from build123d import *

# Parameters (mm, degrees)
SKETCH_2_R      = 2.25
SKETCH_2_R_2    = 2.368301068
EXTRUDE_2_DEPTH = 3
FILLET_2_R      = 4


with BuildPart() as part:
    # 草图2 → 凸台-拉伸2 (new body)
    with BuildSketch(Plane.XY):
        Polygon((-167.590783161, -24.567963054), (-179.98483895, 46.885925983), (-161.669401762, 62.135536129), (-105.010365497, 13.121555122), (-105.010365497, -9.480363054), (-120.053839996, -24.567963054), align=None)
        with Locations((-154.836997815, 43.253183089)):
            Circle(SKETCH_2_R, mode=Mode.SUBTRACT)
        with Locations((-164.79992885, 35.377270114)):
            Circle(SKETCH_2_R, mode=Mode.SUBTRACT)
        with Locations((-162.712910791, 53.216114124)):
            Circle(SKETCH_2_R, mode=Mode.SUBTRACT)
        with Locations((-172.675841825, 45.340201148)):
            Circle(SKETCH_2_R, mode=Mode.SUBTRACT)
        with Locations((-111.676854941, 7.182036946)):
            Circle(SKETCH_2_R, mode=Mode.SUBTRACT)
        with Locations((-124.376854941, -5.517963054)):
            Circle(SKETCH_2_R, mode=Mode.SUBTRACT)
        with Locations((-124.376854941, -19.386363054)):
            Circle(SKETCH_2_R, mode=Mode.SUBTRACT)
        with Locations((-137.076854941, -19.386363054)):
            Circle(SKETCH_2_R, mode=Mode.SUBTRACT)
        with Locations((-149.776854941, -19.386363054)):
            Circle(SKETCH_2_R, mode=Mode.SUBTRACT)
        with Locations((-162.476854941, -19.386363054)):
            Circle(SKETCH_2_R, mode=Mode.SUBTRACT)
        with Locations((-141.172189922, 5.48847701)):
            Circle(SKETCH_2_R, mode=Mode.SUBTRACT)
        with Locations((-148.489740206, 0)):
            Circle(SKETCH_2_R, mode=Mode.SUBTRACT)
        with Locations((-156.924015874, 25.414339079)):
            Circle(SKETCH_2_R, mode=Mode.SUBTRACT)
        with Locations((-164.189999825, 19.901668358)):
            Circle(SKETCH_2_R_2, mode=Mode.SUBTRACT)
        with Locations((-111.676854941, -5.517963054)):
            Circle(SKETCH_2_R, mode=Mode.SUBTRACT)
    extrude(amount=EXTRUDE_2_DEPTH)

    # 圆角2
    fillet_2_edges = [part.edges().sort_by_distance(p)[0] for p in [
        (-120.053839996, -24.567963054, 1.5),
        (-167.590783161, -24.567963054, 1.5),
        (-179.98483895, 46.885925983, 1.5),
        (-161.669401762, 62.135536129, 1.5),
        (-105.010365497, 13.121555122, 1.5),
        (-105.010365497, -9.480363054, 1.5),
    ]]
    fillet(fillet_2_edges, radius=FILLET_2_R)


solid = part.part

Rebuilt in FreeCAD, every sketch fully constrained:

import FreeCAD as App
import Part
import Sketcher

V = App.Vector
Q = App.Units.Quantity


def edges_at(feature, points):
    """Names of the edges that pass closest to the given points."""
    edges = feature.Shape.Edges
    near = lambda p: min(range(len(edges)), key=lambda i: edges[i].distToShape(Part.Vertex(*p))[0])
    return sorted({f"Edge{near(p) + 1}" for p in points})


def add_polygon(sketch, points):
    """Adds a closed chain of lines whose ends are joined by coincident constraints."""
    first, n = sketch.GeometryCount, len(points)
    for a, b in zip(points, points[1:] + points[:1]):
        sketch.addGeometry(Part.LineSegment(App.Vector(*a, 0), App.Vector(*b, 0)), False)
    for i in range(n):
        sketch.addConstraint(Sketcher.Constraint("Coincident", first + i, 2, first + (i + 1) % n, 1))

doc = App.newDocument("Part")
body = doc.addObject("PartDesign::Body", "Body")

# Sketch on XY plane
sketch1 = doc.addObject("Sketcher::SketchObject", "Sketch")
body.addObject(sketch1)
sketch1.AttachmentSupport = (doc.XY_Plane, [""])
sketch1.MapMode = "FlatFace"
add_polygon(sketch1, [(-180, 46.9), (-167.6, -24.6), (-120.1, -24.6), (-105, -9.5), (-105, 13.1), (-161.7, 62.1)])  # lines 0-5
sketch1.addGeometry(Part.Circle(V(-124.4, -19.4, 0), V(0, 0, 1), 2.2), False)  # 6
sketch1.addGeometry(Part.Circle(V(-111.7, -5.5, 0), V(0, 0, 1), 2.2), False)  # 7
sketch1.addGeometry(Part.Circle(V(-124.4, -5.5, 0), V(0, 0, 1), 2.2), False)  # 8
sketch1.addGeometry(Part.Circle(V(-137.1, -19.4, 0), V(0, 0, 1), 2.2), False)  # 9
sketch1.addGeometry(Part.Circle(V(-111.7, 7.2, 0), V(0, 0, 1), 2.2), False)  # 10
sketch1.addGeometry(Part.Circle(V(-141.2, 5.5, 0), V(0, 0, 1), 2.2), False)  # 11
sketch1.addGeometry(Part.Circle(V(-149.8, -19.4, 0), V(0, 0, 1), 2.2), False)  # 12
sketch1.addGeometry(Part.Circle(V(-162.5, -19.4, 0), V(0, 0, 1), 2.2), False)  # 13
sketch1.addGeometry(Part.Circle(V(-148.5, 0, 0), V(0, 0, 1), 2.2), False)  # 14
sketch1.addGeometry(Part.Circle(V(-156.9, 25.4, 0), V(0, 0, 1), 2.2), False)  # 15
sketch1.addGeometry(Part.Circle(V(-164.2, 19.9, 0), V(0, 0, 1), 2.4), False)  # 16
sketch1.addGeometry(Part.Circle(V(-164.8, 35.4, 0), V(0, 0, 1), 2.2), False)  # 17
sketch1.addGeometry(Part.Circle(V(-154.8, 43.3, 0), V(0, 0, 1), 2.2), False)  # 18
sketch1.addGeometry(Part.Circle(V(-172.7, 45.3, 0), V(0, 0, 1), 2.2), False)  # 19
sketch1.addGeometry(Part.Circle(V(-162.7, 53.2, 0), V(0, 0, 1), 2.2), False)  # 20
sketch1.addConstraint([
    Sketcher.Constraint("Horizontal", 1),
    Sketcher.Constraint("Vertical", 3),
    Sketcher.Constraint("Equal", 6, 7),
    Sketcher.Constraint("Equal", 7, 8),
    Sketcher.Constraint("Equal", 8, 9),
    Sketcher.Constraint("Equal", 9, 10),
    Sketcher.Constraint("Equal", 10, 11),
    Sketcher.Constraint("Equal", 11, 12),
    Sketcher.Constraint("Equal", 12, 13),
    Sketcher.Constraint("Equal", 13, 14),
    Sketcher.Constraint("Equal", 14, 15),
    Sketcher.Constraint("Equal", 15, 17),
    Sketcher.Constraint("Equal", 17, 18),
    Sketcher.Constraint("Equal", 18, 19),
    Sketcher.Constraint("Equal", 19, 20),
    Sketcher.Constraint("PointOnObject", 14, 3, -1),
    Sketcher.Constraint("Horizontal", 7, 3, 8, 3),
    Sketcher.Constraint("Horizontal", 6, 3, 9, 3),
    Sketcher.Constraint("Horizontal", 9, 3, 12, 3),
    Sketcher.Constraint("Horizontal", 12, 3, 13, 3),
    Sketcher.Constraint("Vertical", 6, 3, 8, 3),
    Sketcher.Constraint("Vertical", 7, 3, 10, 3),
    Sketcher.Constraint("Diameter", 6, Q("4.5 mm")),
    Sketcher.Constraint("DistanceX", 6, 3, 7, 3, Q("12.7 mm")),
    Sketcher.Constraint("DistanceX", 9, 3, 6, 3, Q("12.7 mm")),
    Sketcher.Constraint("DistanceY", 7, 3, 10, 3, Q("12.7 mm")),
    Sketcher.Constraint("DistanceX", 12, 3, 9, 3, Q("12.7 mm")),
    Sketcher.Constraint("DistanceX", 13, 3, 12, 3, Q("12.7 mm")),
    Sketcher.Constraint("DistanceX", 16, 3, -1, 1, Q("164.19 mm")),
    Sketcher.Constraint("DistanceY", 1, 2, 8, 3, Q("19.05 mm")),
    Sketcher.Constraint("Diameter", 16, Q("4.736602 mm")),
    Sketcher.Constraint("DistanceY", 6, 3, 2, 2, Q("9.906 mm")),
    Sketcher.Constraint("Distance", 4, Q("74.917399 mm")),
    Sketcher.Constraint("DistanceY", 3, 1, 3, 2, Q("22.601918 mm")),
    Sketcher.Constraint("DistanceY", -1, 1, 19, 3, Q("45.340201 mm")),
    Sketcher.Constraint("DistanceX", 4, 2, -1, 1, Q("161.669402 mm")),
    Sketcher.Constraint("DistanceY", 6, 3, 7, 3, Q("13.8684 mm")),
    Sketcher.Constraint("DistanceY", 16, 3, 17, 3, Q("15.475602 mm")),
    Sketcher.Constraint("Distance", 0, Q("72.520831 mm")),
    Sketcher.Constraint("Distance", 2, Q("21.30591 mm")),
    Sketcher.Constraint("DistanceX", 1, 1, 1, 2, Q("47.536943 mm")),
    Sketcher.Constraint("DistanceX", 11, 3, -1, 1, Q("141.17219 mm")),
    Sketcher.Constraint("DistanceX", 14, 3, -1, 1, Q("148.48974 mm")),
    Sketcher.Constraint("DistanceY", -1, 1, 15, 3, Q("25.414339 mm")),
    Sketcher.Constraint("DistanceY", -1, 1, 16, 3, Q("19.901668 mm")),
    Sketcher.Constraint("DistanceX", 17, 3, -1, 1, Q("164.799929 mm")),
    Sketcher.Constraint("DistanceX", 19, 3, -1, 1, Q("172.675842 mm")),
    Sketcher.Constraint("DistanceX", 20, 3, -1, 1, Q("162.712911 mm")),
    Sketcher.Constraint("DistanceX", 1, 2, -1, 1, Q("120.05384 mm")),
    Sketcher.Constraint("DistanceX", 5, 2, -1, 1, Q("179.984839 mm")),
    Sketcher.Constraint("DistanceY", 8, 3, 11, 3, Q("11.00644 mm")),
    Sketcher.Constraint("DistanceX", 15, 3, 8, 3, Q("32.547161 mm")),
    Sketcher.Constraint("DistanceY", 11, 3, 16, 3, Q("14.413191 mm")),
    Sketcher.Constraint("DistanceX", 17, 3, 18, 3, Q("9.962931 mm")),
    Sketcher.Constraint("DistanceX", 15, 3, 18, 3, Q("2.087018 mm")),
    Sketcher.Constraint("DistanceY", 18, 3, 19, 3, Q("2.087018 mm")),
    Sketcher.Constraint("DistanceY", 18, 3, 20, 3, Q("9.962931 mm")),
])
pad1 = doc.addObject("PartDesign::Pad", "Pad")
body.addObject(pad1)
pad1.Profile = sketch1
pad1.Length = 3
doc.recompute()

fillet = doc.addObject("PartDesign::Fillet", "Fillet")
body.addObject(fillet)
fillet.Base = (pad1, edges_at(pad1, [
    (-120.054, -24.568, 1.5),
    (-167.591, -24.568, 1.5),
    (-179.985, 46.886, 1.5),
    (-161.669, 62.136, 1.5),
    (-105.01, 13.122, 1.5),
    (-105.01, -9.48, 1.5),
]))
fillet.Radius = 4

doc.recompute()
